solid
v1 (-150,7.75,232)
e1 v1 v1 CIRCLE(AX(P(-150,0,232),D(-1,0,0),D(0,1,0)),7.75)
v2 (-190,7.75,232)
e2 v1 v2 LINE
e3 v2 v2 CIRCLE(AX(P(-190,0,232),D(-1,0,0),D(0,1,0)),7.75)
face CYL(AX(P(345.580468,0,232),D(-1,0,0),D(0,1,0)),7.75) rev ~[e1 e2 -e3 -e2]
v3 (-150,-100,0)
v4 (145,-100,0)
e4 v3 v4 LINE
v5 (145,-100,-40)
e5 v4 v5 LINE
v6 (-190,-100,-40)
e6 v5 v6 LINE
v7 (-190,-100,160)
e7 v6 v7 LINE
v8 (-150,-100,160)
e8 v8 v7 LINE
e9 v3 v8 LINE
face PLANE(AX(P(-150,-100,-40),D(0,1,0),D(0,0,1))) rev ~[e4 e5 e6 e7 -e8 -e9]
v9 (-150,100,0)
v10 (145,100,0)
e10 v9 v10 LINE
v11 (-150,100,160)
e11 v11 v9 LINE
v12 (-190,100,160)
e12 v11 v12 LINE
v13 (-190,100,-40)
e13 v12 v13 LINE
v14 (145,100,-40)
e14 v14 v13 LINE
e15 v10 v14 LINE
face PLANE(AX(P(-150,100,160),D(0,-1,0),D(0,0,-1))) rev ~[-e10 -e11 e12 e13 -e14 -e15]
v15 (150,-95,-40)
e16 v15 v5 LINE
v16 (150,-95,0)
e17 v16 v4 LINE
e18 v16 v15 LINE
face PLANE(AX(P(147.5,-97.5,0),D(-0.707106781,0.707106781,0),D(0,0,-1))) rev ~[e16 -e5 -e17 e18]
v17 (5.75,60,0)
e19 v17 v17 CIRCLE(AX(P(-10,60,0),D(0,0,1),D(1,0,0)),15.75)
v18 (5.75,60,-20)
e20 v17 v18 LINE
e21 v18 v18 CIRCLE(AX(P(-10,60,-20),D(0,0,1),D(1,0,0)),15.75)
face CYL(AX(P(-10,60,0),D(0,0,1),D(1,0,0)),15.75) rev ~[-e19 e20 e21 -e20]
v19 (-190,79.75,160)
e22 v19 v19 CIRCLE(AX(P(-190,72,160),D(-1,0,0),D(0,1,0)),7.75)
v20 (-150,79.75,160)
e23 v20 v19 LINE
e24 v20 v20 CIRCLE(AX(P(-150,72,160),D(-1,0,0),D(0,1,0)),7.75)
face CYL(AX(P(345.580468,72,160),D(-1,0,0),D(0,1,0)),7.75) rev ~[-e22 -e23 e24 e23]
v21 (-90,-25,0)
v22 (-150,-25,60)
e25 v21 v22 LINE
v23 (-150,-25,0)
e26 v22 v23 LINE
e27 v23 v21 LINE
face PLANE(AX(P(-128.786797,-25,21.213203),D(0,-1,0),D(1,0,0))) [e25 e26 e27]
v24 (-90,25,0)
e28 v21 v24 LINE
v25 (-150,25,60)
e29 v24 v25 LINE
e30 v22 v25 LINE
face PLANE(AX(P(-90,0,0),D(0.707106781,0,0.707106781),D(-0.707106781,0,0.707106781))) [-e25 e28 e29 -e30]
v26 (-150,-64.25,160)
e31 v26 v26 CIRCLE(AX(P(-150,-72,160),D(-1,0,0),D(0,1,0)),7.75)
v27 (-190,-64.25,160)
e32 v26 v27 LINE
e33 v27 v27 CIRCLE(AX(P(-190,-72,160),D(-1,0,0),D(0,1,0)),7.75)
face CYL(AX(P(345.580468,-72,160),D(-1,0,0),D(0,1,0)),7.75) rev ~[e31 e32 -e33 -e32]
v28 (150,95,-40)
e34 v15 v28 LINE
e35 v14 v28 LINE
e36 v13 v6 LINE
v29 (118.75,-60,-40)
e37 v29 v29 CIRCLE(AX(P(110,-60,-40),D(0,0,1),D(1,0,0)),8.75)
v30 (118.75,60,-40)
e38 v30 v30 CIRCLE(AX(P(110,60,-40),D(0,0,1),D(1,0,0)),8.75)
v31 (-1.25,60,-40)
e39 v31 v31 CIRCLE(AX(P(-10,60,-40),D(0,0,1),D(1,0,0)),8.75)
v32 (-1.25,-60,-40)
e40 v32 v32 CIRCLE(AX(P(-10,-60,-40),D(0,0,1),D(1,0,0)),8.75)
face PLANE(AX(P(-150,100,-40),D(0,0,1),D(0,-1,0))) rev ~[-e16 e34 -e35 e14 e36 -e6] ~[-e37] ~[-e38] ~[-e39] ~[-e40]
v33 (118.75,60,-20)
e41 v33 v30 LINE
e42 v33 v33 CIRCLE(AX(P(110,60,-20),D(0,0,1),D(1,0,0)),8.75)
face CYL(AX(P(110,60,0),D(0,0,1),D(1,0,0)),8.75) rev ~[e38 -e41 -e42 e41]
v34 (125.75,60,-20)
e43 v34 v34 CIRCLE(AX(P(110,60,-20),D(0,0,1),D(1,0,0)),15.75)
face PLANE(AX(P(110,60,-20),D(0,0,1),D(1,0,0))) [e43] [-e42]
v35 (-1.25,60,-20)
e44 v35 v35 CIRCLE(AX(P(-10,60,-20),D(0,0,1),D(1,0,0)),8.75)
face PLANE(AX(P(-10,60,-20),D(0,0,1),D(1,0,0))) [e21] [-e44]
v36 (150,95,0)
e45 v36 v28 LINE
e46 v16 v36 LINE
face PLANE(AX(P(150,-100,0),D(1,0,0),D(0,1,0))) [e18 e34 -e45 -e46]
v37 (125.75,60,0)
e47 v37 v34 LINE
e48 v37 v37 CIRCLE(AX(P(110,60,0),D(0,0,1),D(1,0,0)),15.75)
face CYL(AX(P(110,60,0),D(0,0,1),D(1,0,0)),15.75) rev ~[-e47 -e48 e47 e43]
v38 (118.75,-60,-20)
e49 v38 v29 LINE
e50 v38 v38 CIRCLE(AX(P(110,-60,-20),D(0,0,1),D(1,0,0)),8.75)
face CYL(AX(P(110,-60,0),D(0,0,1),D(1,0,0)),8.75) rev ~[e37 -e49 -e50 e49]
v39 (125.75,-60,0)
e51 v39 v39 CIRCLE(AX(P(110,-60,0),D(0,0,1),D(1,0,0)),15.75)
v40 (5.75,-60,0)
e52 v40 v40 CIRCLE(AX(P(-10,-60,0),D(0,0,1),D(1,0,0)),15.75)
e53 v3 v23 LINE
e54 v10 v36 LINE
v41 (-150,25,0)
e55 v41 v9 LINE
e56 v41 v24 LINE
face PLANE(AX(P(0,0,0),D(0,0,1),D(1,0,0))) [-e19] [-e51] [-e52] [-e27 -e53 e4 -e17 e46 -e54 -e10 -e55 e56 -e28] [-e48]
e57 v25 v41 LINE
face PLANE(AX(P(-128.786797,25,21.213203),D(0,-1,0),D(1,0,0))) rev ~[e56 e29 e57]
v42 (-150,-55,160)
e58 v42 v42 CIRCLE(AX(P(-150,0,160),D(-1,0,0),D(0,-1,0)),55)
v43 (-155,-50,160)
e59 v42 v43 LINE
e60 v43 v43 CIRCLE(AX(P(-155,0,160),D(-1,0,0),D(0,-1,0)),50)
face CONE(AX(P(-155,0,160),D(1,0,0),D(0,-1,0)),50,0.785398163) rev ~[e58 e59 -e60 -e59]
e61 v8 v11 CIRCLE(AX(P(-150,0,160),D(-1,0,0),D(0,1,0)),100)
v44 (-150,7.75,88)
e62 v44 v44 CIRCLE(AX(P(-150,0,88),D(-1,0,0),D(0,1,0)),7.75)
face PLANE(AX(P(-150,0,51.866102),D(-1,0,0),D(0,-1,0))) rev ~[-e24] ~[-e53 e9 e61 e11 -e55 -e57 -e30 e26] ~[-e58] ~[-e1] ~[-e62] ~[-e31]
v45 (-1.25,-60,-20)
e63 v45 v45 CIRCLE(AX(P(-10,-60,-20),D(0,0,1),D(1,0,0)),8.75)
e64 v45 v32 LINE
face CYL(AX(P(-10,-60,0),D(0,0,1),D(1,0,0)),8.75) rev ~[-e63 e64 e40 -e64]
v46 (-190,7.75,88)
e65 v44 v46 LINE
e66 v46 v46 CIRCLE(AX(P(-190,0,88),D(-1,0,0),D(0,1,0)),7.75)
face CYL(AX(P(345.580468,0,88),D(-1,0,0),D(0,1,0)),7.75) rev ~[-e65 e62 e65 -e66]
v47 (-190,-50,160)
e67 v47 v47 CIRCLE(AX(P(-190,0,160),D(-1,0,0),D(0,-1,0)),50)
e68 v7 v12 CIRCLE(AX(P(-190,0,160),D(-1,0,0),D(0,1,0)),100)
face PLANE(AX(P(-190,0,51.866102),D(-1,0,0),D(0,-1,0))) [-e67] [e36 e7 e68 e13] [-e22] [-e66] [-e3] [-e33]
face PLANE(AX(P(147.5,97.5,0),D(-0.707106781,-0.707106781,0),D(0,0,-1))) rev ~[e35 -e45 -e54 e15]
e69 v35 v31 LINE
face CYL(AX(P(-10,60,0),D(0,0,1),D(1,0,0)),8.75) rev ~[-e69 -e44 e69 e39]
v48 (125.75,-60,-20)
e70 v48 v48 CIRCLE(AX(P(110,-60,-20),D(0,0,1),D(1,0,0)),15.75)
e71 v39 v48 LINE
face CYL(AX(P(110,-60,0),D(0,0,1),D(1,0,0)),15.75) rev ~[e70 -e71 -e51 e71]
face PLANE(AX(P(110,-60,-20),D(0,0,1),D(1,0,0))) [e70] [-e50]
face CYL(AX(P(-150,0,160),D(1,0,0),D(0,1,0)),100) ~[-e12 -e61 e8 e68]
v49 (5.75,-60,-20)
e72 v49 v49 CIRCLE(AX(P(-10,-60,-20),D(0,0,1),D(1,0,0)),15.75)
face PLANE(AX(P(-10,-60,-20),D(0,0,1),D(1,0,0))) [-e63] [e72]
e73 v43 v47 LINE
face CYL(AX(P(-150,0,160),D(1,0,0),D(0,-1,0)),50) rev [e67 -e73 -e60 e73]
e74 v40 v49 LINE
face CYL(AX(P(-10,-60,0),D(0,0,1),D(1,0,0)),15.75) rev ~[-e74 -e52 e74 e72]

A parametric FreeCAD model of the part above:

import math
import FreeCAD as App
import Part
import Sketcher

V = App.Vector
Q = App.Units.Quantity


def edges_at(feature, points):
    """Names of the edges that pass closest to the given points."""
    edges = feature.Shape.Edges
    near = lambda p: min(range(len(edges)), key=lambda i: edges[i].distToShape(Part.Vertex(*p))[0])
    return sorted({f"Edge{near(p) + 1}" for p in points})

doc = App.newDocument("Part")
body = doc.addObject("PartDesign::Body", "Body")

# Sketch on XY plane
sketch1 = doc.addObject("Sketcher::SketchObject", "Sketch")
body.addObject(sketch1)
sketch1.AttachmentSupport = (doc.XY_Plane, [""])
sketch1.MapMode = "FlatFace"
sketch1.addGeometry([
    Part.LineSegment(V(-150, 100, 0), V(-150, -100, 0)),  # 0
    Part.LineSegment(V(-150, -100, 0), V(150, -100, 0)),  # 1
    Part.LineSegment(V(150, -100, 0), V(150, 100, 0)),  # 2
    Part.LineSegment(V(150, 100, 0), V(-150, 100, 0)),  # 3
    Part.Circle(V(-10, -60, 0), V(0, 0, 1), 9),  # 4
    Part.Circle(V(110, -60, 0), V(0, 0, 1), 9),  # 5
    Part.Circle(V(-10, 60, 0), V(0, 0, 1), 9),  # 6
    Part.Circle(V(110, 60, 0), V(0, 0, 1), 9),  # 7
], False)
sketch1.addConstraint([
    Sketcher.Constraint("Coincident", 0, 2, 1, 1),
    Sketcher.Constraint("Coincident", 1, 2, 2, 1),
    Sketcher.Constraint("Coincident", 2, 2, 3, 1),
    Sketcher.Constraint("Coincident", 3, 2, 0, 1),
    Sketcher.Constraint("Vertical", 0),
    Sketcher.Constraint("Horizontal", 1),
    Sketcher.Constraint("Vertical", 2),
    Sketcher.Constraint("Horizontal", 3),
    Sketcher.Constraint("Equal", 4, 5),
    Sketcher.Constraint("Equal", 5, 6),
    Sketcher.Constraint("Equal", 6, 7),
    Sketcher.Constraint("Symmetric", 0, 2, 2, 2, -1, 1),
    Sketcher.Constraint("Symmetric", 4, 3, 6, 3, -1),
    Sketcher.Constraint("Symmetric", 5, 3, 7, 3, -1),
    Sketcher.Constraint("Horizontal", 4, 3, 5, 3),
    Sketcher.Constraint("Diameter", 4, Q("17.5 mm")),
    Sketcher.Constraint("DistanceX", 1, 1, 1, 2, Q("300 mm")),
    Sketcher.Constraint("DistanceY", 0, 2, 0, 1, Q("200 mm")),
    Sketcher.Constraint("DistanceX", 4, 3, -1, 1, Q("10 mm")),
    Sketcher.Constraint("DistanceY", 4, 3, -1, 1, Q("60 mm")),
    Sketcher.Constraint("DistanceX", -1, 1, 5, 3, Q("110 mm")),
])
pad1 = doc.addObject("PartDesign::Pad", "Pad")
body.addObject(pad1)
pad1.Profile = sketch1
pad1.Length = 40
pad1.Reversed = True

# Sketch on XY plane
sketch2 = doc.addObject("Sketcher::SketchObject", "Sketch001")
body.addObject(sketch2)
sketch2.AttachmentSupport = (doc.XY_Plane, [""])
sketch2.MapMode = "FlatFace"
sketch2.addGeometry([
    Part.Circle(V(-10, 60, 0), V(0, 0, 1), 16),  # 0
    Part.Circle(V(-10, 60, 0), V(0, 0, 1), 9),  # 1
    Part.Circle(V(110, 60, 0), V(0, 0, 1), 16),  # 2
    Part.Circle(V(110, 60, 0), V(0, 0, 1), 9),  # 3
    Part.Circle(V(110, -60, 0), V(0, 0, 1), 16),  # 4
    Part.Circle(V(110, -60, 0), V(0, 0, 1), 9),  # 5
    Part.Circle(V(-10, -60, 0), V(0, 0, 1), 16),  # 6
    Part.Circle(V(-10, -60, 0), V(0, 0, 1), 9),  # 7
], False)
sketch2.addConstraint([
    Sketcher.Constraint("Coincident", 1, 3, 0, 3),
    Sketcher.Constraint("Coincident", 3, 3, 2, 3),
    Sketcher.Constraint("Coincident", 5, 3, 4, 3),
    Sketcher.Constraint("Coincident", 7, 3, 6, 3),
    Sketcher.Constraint("Equal", 0, 2),
    Sketcher.Constraint("Equal", 1, 3),
    Sketcher.Constraint("Equal", 2, 4),
    Sketcher.Constraint("Equal", 3, 5),
    Sketcher.Constraint("Equal", 4, 6),
    Sketcher.Constraint("Equal", 5, 7),
    Sketcher.Constraint("Symmetric", 2, 3, 4, 3, -1),
    Sketcher.Constraint("Symmetric", 0, 3, 6, 3, -1),
    Sketcher.Constraint("Horizontal", 1, 3, 2, 3),
    Sketcher.Constraint("Diameter", 0, Q("31.5 mm")),
    Sketcher.Constraint("Diameter", 1, Q("17.5 mm")),
    Sketcher.Constraint("DistanceX", 0, 3, -1, 1, Q("10 mm")),
    Sketcher.Constraint("DistanceY", -1, 1, 0, 3, Q("60 mm")),
    Sketcher.Constraint("DistanceX", -1, 1, 2, 3, Q("110 mm")),
])
pocket1 = doc.addObject("PartDesign::Pocket", "Pocket")
body.addObject(pocket1)
pocket1.Profile = sketch2
pocket1.Length = 20

# Sketch on YZ plane
sketch3 = doc.addObject("Sketcher::SketchObject", "Sketch002")
body.addObject(sketch3)
sketch3.AttachmentSupport = (doc.YZ_Plane, [""])
sketch3.MapMode = "FlatFace"
sketch3.AttachmentOffset = App.Placement(V(0, 0, -150), App.Rotation())
sketch3.addGeometry([
    Part.LineSegment(V(100, 160, 0), V(100, -40, 0)),  # 0
    Part.LineSegment(V(100, -40, 0), V(-100, -40, 0)),  # 1
    Part.LineSegment(V(-100, -40, 0), V(-100, 160, 0)),  # 2
    Part.ArcOfCircle(Part.Circle(V(0, 160, 0), V(0, 0, 1), 100), math.radians(0), math.radians(180)),  # 3
    Part.Circle(V(0, 160, 0), V(0, 0, 1), 50),  # 4
], False)
sketch3.addConstraint([
    Sketcher.Constraint("Coincident", 0, 2, 1, 1),
    Sketcher.Constraint("Coincident", 1, 2, 2, 1),
    Sketcher.Constraint("Tangent", 2, 2, 3, 2),
    Sketcher.Constraint("Tangent", 3, 1, 0, 1),
    Sketcher.Constraint("Vertical", 0),
    Sketcher.Constraint("Horizontal", 1),
    Sketcher.Constraint("Vertical", 2),
    Sketcher.Constraint("Coincident", 4, 3, 3, 3),
    Sketcher.Constraint("PointOnObject", 3, 3, -2),
    Sketcher.Constraint("Equal", 1, 0),
    Sketcher.Constraint("Diameter", 4, Q("100 mm")),
    Sketcher.Constraint("Radius", 3, Q("100 mm")),
    Sketcher.Constraint("DistanceY", -1, 1, 3, 3, Q("160 mm")),
])
pad2 = doc.addObject("PartDesign::Pad", "Pad001")
body.addObject(pad2)
pad2.Profile = sketch3
pad2.Length = 40
pad2.Reversed = True

# Sketch on YZ plane
sketch4 = doc.addObject("Sketcher::SketchObject", "Sketch003")
body.addObject(sketch4)
sketch4.AttachmentSupport = (doc.YZ_Plane, [""])
sketch4.MapMode = "FlatFace"
sketch4.AttachmentOffset = App.Placement(V(0, 0, -150), App.Rotation())
sketch4.addGeometry([
    Part.Circle(V(72, 160, 0), V(0, 0, 1), 8),
    Part.Circle(V(0, 232, 0), V(0, 0, 1), 8),
    Part.Circle(V(-72, 160, 0), V(0, 0, 1), 8),
    Part.Circle(V(0, 88, 0), V(0, 0, 1), 8),
], False)
sketch4.addConstraint([
    Sketcher.Constraint("Equal", 0, 1),
    Sketcher.Constraint("Equal", 1, 2),
    Sketcher.Constraint("Equal", 2, 3),
    Sketcher.Constraint("Symmetric", 0, 3, 2, 3, -2),
    Sketcher.Constraint("PointOnObject", 1, 3, -2),
    Sketcher.Constraint("PointOnObject", 3, 3, -2),
    Sketcher.Constraint("Diameter", 0, Q("15.5 mm")),
    Sketcher.Constraint("DistanceX", -1, 1, 0, 3, Q("72 mm")),
    Sketcher.Constraint("DistanceY", -1, 1, 0, 3, Q("160 mm")),
    Sketcher.Constraint("DistanceY", -1, 1, 1, 3, Q("232 mm")),
    Sketcher.Constraint("DistanceY", -1, 1, 3, 3, Q("88 mm")),
])
doc.recompute()
hole = doc.addObject("PartDesign::Hole", "Hole")
body.addObject(hole)
hole.Profile = sketch4
hole.ThreadType = "None"
hole.Diameter = 15.5
hole.DepthType = "ThroughAll"

# Sketch on XZ plane
sketch5 = doc.addObject("Sketcher::SketchObject", "Sketch004")
body.addObject(sketch5)
sketch5.AttachmentSupport = (doc.XZ_Plane, [""])
sketch5.MapMode = "FlatFace"
sketch5.addGeometry([
    Part.LineSegment(V(-150, 60, 0), V(-150, 0, 0)),
    Part.LineSegment(V(-150, 0, 0), V(-90, 0, 0)),
    Part.LineSegment(V(-90, 0, 0), V(-150, 60, 0)),
], False)
sketch5.addConstraint([
    Sketcher.Constraint("Coincident", 0, 2, 1, 1),
    Sketcher.Constraint("Coincident", 1, 2, 2, 1),
    Sketcher.Constraint("Coincident", 2, 2, 0, 1),
    Sketcher.Constraint("Vertical", 0),
    Sketcher.Constraint("Horizontal", 1),
    Sketcher.Constraint("PointOnObject", 0, 2, -1),
    Sketcher.Constraint("Equal", 1, 0),
    Sketcher.Constraint("DistanceX", 1, 1, 1, 2, Q("60 mm")),
    Sketcher.Constraint("DistanceX", 0, 2, -1, 1, Q("150 mm")),
])
pad3 = doc.addObject("PartDesign::Pad", "Pad002")
body.addObject(pad3)
pad3.Profile = sketch5
pad3.Length = 50
pad3.Midplane = True
doc.recompute()

chamfer = doc.addObject("PartDesign::Chamfer", "Chamfer")
body.addObject(chamfer)
chamfer.Base = (pad3, edges_at(pad3, [(150, -100, -20), (150, 100, -20), (-150, 50, 160)]))
chamfer.Size = 5

doc.recompute()
